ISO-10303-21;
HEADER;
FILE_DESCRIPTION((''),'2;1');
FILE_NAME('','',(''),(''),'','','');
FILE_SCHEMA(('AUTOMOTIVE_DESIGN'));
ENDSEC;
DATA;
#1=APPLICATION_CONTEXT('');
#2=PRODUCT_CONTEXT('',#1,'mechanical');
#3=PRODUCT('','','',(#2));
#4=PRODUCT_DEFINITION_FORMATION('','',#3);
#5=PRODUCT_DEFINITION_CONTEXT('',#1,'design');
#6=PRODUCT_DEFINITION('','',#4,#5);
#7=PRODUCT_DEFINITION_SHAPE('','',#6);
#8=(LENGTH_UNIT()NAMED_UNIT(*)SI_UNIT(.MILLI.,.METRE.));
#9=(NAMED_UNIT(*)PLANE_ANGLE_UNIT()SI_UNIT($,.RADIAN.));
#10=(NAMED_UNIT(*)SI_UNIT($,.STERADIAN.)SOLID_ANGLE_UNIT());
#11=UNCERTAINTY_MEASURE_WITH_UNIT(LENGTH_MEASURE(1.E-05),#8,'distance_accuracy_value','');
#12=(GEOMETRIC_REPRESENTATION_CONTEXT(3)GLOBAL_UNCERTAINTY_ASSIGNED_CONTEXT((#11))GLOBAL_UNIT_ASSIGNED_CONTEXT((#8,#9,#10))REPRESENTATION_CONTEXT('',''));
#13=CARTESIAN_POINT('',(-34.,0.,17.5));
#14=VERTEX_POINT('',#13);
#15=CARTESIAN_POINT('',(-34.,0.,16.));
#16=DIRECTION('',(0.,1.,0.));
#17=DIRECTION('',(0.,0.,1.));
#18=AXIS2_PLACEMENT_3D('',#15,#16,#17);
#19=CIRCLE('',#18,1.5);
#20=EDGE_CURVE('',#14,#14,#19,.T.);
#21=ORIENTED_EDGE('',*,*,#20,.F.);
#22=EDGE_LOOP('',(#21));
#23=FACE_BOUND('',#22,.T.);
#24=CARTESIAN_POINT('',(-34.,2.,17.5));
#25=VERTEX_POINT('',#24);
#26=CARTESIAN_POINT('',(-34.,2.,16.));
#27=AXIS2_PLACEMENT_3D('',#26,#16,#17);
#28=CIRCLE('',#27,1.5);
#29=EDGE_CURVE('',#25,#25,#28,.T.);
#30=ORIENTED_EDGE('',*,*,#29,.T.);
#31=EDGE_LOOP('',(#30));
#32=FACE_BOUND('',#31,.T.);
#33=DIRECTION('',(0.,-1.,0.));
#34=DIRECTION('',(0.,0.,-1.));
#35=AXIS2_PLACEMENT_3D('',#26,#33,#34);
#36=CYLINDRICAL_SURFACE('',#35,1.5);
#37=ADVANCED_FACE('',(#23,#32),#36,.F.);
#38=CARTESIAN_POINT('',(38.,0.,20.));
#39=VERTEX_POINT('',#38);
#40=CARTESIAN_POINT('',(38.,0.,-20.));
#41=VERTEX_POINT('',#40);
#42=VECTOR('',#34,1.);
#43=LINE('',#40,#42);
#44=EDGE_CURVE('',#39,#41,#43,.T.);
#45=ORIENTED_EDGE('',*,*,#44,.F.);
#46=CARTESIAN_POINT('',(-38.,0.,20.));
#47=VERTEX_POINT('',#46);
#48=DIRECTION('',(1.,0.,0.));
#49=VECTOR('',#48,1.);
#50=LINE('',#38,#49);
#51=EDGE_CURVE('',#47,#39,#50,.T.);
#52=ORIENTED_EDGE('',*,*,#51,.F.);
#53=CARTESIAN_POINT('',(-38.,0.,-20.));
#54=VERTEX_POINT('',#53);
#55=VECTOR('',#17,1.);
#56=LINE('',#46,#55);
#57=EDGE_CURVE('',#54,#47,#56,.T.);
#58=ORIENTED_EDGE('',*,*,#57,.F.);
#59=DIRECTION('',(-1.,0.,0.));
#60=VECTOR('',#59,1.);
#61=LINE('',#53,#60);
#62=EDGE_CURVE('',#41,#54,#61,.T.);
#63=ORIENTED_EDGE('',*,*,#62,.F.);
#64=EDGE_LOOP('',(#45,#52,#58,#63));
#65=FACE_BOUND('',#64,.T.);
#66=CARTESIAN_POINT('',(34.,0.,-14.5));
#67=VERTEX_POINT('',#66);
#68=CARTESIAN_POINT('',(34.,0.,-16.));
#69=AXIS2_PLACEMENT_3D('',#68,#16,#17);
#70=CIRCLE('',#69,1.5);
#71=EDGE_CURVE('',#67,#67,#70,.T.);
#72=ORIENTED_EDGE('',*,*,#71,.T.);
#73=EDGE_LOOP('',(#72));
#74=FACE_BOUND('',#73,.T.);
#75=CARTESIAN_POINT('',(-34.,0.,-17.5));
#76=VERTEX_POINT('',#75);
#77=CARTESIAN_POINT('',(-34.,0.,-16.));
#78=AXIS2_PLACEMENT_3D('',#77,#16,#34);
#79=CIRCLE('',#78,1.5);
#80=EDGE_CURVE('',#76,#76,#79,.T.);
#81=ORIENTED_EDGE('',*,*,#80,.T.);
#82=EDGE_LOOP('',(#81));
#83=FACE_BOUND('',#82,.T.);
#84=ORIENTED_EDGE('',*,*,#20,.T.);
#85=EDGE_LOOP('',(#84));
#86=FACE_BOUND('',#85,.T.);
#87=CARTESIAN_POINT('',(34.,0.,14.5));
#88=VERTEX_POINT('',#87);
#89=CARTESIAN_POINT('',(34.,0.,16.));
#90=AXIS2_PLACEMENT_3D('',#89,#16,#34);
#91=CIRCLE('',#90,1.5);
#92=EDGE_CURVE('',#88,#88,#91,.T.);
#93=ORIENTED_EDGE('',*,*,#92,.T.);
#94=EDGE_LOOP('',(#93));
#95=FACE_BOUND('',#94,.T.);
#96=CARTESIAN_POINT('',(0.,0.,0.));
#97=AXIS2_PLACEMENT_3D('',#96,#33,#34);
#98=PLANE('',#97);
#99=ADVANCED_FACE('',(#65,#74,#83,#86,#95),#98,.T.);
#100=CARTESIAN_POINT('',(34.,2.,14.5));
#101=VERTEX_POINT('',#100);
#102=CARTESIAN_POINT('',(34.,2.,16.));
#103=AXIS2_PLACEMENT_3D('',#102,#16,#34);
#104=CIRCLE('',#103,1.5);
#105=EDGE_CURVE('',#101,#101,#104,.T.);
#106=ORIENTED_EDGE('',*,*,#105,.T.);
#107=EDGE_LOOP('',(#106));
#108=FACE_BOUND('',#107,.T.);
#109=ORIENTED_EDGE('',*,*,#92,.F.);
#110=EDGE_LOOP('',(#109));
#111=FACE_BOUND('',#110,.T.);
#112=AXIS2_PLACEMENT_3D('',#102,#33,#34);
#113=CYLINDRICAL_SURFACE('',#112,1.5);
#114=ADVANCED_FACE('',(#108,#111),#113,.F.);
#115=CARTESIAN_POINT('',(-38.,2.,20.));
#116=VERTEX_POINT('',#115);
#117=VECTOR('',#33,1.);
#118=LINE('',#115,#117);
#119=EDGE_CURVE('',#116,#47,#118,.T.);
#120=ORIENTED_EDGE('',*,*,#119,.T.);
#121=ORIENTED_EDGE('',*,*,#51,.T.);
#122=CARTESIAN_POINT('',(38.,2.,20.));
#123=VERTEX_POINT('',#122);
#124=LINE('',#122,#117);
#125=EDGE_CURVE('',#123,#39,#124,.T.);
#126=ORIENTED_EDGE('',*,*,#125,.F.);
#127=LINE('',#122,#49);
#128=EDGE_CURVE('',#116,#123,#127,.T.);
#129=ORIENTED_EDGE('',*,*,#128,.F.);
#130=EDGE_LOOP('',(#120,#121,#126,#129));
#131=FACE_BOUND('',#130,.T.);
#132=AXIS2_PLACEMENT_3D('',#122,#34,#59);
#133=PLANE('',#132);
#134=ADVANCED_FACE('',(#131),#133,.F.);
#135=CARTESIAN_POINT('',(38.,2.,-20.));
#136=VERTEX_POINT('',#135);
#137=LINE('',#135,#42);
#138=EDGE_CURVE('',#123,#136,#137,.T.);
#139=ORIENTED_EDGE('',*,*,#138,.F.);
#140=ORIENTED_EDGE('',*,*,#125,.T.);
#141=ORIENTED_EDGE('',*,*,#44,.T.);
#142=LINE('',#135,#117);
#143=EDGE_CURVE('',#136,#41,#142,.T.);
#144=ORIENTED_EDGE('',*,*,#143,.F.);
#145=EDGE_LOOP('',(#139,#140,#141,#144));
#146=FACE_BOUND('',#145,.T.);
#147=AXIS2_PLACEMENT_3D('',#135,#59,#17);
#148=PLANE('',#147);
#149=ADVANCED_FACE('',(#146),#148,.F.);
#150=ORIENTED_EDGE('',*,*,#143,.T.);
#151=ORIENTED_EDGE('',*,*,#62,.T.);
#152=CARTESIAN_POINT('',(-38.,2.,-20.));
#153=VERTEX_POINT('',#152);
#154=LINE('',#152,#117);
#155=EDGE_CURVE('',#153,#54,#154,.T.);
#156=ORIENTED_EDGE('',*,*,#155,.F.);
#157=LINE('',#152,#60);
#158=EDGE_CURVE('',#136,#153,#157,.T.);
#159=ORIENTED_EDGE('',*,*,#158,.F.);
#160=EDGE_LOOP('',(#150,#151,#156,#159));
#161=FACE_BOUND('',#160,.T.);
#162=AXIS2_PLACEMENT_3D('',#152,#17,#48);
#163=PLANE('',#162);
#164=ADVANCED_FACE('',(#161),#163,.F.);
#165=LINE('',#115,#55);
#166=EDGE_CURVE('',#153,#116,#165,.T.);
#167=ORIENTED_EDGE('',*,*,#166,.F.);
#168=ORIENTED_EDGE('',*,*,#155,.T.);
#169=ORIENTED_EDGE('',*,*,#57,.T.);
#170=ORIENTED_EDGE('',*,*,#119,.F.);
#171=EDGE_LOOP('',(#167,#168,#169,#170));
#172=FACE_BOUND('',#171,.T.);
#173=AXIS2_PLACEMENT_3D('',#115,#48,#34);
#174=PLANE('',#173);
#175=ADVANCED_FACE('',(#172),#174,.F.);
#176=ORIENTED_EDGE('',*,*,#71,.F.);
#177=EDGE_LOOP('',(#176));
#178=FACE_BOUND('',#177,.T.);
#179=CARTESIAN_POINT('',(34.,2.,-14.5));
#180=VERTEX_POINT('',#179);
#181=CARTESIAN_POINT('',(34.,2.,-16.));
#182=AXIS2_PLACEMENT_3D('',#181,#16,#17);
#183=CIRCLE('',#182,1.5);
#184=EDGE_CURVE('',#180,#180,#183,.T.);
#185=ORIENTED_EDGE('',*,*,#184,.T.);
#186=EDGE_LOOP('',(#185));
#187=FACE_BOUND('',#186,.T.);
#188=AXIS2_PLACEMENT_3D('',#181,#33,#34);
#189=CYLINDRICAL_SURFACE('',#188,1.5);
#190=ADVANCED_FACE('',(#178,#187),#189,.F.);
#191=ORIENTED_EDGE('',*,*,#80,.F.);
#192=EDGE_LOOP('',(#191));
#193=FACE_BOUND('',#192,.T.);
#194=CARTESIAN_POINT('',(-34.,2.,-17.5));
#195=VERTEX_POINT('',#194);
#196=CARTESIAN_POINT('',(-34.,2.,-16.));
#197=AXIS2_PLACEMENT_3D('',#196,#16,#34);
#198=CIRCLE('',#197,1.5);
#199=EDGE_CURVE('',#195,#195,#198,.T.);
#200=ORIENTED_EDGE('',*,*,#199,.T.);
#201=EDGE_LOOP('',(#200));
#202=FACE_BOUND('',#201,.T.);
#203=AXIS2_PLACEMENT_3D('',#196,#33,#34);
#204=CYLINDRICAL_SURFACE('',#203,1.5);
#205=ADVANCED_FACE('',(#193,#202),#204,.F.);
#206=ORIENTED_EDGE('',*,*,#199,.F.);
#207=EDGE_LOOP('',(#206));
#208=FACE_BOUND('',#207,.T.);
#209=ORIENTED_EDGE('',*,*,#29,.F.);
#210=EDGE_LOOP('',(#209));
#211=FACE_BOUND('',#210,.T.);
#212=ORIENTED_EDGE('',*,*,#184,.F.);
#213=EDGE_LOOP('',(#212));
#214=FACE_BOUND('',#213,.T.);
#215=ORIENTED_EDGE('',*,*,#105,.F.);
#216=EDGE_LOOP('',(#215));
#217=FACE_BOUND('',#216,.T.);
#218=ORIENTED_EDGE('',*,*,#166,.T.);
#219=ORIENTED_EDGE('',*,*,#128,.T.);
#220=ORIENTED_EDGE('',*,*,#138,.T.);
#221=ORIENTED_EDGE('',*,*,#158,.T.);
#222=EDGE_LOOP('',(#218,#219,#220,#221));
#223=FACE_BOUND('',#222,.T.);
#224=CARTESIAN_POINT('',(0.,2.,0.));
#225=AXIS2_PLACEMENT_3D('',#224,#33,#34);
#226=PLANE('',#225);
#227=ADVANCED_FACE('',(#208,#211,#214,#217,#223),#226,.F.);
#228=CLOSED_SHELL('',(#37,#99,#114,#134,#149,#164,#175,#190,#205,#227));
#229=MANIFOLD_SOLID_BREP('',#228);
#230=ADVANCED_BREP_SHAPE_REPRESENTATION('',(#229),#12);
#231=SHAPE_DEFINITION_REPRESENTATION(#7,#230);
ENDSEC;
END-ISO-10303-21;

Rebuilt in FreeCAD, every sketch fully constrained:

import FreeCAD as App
import Part
import Sketcher
from FreeCAD import Vector

doc = App.newDocument("Part")
params = doc.addObject("Spreadsheet::Sheet", "Params")
for row, (alias, value) in enumerate([
    ("sketch1_diameter", "3 mm"),
    ("sketch1_width", "76 mm"),
    ("sketch1_height", "40 mm"),
    ("pad1_length", "2 mm"),
], start=1):
    params.set(f"A{row}", alias)
    params.set(f"B{row}", "=" + value)
    params.setAlias(f"B{row}", alias)

body = doc.addObject("PartDesign::Body", "Body")

sketch1 = doc.addObject("Sketcher::SketchObject", "Sketch")
body.addObject(sketch1)
sketch1.AttachmentSupport = (doc.XZ_Plane, [""])
sketch1.MapMode = "FlatFace"
sketch1.addGeometry(Part.LineSegment(Vector(-38, -20, 0), Vector(-38, 20, 0)), False)
sketch1.addGeometry(Part.LineSegment(Vector(-38, 20, 0), Vector(38, 20, 0)), False)
sketch1.addGeometry(Part.LineSegment(Vector(38, 20, 0), Vector(38, -20, 0)), False)
sketch1.addGeometry(Part.LineSegment(Vector(38, -20, 0), Vector(-38, -20, 0)), False)
sketch1.addGeometry(Part.Circle(Vector(-34, 16, 0), Vector(0, 0, 1), 1.5), False)
sketch1.addGeometry(Part.Circle(Vector(34, 16, 0), Vector(0, 0, 1), 1.5), False)
sketch1.addGeometry(Part.Circle(Vector(-34, -16, 0), Vector(0, 0, 1), 1.5), False)
sketch1.addGeometry(Part.Circle(Vector(34, -16, 0), Vector(0, 0, 1), 1.5), False)
sketch1.addConstraint(Sketcher.Constraint("Coincident", 0, 2, 1, 1))
sketch1.addConstraint(Sketcher.Constraint("Coincident", 1, 2, 2, 1))
sketch1.addConstraint(Sketcher.Constraint("Coincident", 2, 2, 3, 1))
sketch1.addConstraint(Sketcher.Constraint("Coincident", 3, 2, 0, 1))
sketch1.addConstraint(Sketcher.Constraint("Vertical", 0))
sketch1.addConstraint(Sketcher.Constraint("Horizontal", 1))
sketch1.addConstraint(Sketcher.Constraint("Vertical", 2))
sketch1.addConstraint(Sketcher.Constraint("Horizontal", 3))
sketch1.addConstraint(Sketcher.Constraint("Equal", 4, 5))
sketch1.addConstraint(Sketcher.Constraint("Equal", 5, 6))
sketch1.addConstraint(Sketcher.Constraint("Equal", 6, 7))
sketch1.addConstraint(Sketcher.Constraint("Symmetric", 5, 3, 6, 3, -1, 1))
sketch1.addConstraint(Sketcher.Constraint("Symmetric", 4, 3, 7, 3, -1, 1))
sketch1.addConstraint(Sketcher.Constraint("Symmetric", 0, 2, 2, 2, -1, 1))
sketch1.addConstraint(Sketcher.Constraint("Symmetric", 4, 3, 5, 3, -2))
sketch1.addConstraint(Sketcher.Constraint("Diameter", 4, 3.0))
sketch1.addConstraint(Sketcher.Constraint("DistanceX", 1, 1, 1, 2, 76.0))
sketch1.addConstraint(Sketcher.Constraint("DistanceY", 0, 1, 0, 2, 40.0))
sketch1.addConstraint(Sketcher.Constraint("DistanceX", 4, 3, -1, 1, 34.0))
sketch1.addConstraint(Sketcher.Constraint("DistanceY", -1, 1, 4, 3, 16.0))
sketch1.setExpression("Constraints[15]", "Params.sketch1_diameter")
sketch1.setExpression("Constraints[16]", "Params.sketch1_width")
sketch1.setExpression("Constraints[17]", "Params.sketch1_height")
pad1 = doc.addObject("PartDesign::Pad", "Pad")
body.addObject(pad1)
pad1.Profile = sketch1
pad1.setExpression("Length", "Params.pad1_length")
pad1.Reversed = True

doc.recompute()
